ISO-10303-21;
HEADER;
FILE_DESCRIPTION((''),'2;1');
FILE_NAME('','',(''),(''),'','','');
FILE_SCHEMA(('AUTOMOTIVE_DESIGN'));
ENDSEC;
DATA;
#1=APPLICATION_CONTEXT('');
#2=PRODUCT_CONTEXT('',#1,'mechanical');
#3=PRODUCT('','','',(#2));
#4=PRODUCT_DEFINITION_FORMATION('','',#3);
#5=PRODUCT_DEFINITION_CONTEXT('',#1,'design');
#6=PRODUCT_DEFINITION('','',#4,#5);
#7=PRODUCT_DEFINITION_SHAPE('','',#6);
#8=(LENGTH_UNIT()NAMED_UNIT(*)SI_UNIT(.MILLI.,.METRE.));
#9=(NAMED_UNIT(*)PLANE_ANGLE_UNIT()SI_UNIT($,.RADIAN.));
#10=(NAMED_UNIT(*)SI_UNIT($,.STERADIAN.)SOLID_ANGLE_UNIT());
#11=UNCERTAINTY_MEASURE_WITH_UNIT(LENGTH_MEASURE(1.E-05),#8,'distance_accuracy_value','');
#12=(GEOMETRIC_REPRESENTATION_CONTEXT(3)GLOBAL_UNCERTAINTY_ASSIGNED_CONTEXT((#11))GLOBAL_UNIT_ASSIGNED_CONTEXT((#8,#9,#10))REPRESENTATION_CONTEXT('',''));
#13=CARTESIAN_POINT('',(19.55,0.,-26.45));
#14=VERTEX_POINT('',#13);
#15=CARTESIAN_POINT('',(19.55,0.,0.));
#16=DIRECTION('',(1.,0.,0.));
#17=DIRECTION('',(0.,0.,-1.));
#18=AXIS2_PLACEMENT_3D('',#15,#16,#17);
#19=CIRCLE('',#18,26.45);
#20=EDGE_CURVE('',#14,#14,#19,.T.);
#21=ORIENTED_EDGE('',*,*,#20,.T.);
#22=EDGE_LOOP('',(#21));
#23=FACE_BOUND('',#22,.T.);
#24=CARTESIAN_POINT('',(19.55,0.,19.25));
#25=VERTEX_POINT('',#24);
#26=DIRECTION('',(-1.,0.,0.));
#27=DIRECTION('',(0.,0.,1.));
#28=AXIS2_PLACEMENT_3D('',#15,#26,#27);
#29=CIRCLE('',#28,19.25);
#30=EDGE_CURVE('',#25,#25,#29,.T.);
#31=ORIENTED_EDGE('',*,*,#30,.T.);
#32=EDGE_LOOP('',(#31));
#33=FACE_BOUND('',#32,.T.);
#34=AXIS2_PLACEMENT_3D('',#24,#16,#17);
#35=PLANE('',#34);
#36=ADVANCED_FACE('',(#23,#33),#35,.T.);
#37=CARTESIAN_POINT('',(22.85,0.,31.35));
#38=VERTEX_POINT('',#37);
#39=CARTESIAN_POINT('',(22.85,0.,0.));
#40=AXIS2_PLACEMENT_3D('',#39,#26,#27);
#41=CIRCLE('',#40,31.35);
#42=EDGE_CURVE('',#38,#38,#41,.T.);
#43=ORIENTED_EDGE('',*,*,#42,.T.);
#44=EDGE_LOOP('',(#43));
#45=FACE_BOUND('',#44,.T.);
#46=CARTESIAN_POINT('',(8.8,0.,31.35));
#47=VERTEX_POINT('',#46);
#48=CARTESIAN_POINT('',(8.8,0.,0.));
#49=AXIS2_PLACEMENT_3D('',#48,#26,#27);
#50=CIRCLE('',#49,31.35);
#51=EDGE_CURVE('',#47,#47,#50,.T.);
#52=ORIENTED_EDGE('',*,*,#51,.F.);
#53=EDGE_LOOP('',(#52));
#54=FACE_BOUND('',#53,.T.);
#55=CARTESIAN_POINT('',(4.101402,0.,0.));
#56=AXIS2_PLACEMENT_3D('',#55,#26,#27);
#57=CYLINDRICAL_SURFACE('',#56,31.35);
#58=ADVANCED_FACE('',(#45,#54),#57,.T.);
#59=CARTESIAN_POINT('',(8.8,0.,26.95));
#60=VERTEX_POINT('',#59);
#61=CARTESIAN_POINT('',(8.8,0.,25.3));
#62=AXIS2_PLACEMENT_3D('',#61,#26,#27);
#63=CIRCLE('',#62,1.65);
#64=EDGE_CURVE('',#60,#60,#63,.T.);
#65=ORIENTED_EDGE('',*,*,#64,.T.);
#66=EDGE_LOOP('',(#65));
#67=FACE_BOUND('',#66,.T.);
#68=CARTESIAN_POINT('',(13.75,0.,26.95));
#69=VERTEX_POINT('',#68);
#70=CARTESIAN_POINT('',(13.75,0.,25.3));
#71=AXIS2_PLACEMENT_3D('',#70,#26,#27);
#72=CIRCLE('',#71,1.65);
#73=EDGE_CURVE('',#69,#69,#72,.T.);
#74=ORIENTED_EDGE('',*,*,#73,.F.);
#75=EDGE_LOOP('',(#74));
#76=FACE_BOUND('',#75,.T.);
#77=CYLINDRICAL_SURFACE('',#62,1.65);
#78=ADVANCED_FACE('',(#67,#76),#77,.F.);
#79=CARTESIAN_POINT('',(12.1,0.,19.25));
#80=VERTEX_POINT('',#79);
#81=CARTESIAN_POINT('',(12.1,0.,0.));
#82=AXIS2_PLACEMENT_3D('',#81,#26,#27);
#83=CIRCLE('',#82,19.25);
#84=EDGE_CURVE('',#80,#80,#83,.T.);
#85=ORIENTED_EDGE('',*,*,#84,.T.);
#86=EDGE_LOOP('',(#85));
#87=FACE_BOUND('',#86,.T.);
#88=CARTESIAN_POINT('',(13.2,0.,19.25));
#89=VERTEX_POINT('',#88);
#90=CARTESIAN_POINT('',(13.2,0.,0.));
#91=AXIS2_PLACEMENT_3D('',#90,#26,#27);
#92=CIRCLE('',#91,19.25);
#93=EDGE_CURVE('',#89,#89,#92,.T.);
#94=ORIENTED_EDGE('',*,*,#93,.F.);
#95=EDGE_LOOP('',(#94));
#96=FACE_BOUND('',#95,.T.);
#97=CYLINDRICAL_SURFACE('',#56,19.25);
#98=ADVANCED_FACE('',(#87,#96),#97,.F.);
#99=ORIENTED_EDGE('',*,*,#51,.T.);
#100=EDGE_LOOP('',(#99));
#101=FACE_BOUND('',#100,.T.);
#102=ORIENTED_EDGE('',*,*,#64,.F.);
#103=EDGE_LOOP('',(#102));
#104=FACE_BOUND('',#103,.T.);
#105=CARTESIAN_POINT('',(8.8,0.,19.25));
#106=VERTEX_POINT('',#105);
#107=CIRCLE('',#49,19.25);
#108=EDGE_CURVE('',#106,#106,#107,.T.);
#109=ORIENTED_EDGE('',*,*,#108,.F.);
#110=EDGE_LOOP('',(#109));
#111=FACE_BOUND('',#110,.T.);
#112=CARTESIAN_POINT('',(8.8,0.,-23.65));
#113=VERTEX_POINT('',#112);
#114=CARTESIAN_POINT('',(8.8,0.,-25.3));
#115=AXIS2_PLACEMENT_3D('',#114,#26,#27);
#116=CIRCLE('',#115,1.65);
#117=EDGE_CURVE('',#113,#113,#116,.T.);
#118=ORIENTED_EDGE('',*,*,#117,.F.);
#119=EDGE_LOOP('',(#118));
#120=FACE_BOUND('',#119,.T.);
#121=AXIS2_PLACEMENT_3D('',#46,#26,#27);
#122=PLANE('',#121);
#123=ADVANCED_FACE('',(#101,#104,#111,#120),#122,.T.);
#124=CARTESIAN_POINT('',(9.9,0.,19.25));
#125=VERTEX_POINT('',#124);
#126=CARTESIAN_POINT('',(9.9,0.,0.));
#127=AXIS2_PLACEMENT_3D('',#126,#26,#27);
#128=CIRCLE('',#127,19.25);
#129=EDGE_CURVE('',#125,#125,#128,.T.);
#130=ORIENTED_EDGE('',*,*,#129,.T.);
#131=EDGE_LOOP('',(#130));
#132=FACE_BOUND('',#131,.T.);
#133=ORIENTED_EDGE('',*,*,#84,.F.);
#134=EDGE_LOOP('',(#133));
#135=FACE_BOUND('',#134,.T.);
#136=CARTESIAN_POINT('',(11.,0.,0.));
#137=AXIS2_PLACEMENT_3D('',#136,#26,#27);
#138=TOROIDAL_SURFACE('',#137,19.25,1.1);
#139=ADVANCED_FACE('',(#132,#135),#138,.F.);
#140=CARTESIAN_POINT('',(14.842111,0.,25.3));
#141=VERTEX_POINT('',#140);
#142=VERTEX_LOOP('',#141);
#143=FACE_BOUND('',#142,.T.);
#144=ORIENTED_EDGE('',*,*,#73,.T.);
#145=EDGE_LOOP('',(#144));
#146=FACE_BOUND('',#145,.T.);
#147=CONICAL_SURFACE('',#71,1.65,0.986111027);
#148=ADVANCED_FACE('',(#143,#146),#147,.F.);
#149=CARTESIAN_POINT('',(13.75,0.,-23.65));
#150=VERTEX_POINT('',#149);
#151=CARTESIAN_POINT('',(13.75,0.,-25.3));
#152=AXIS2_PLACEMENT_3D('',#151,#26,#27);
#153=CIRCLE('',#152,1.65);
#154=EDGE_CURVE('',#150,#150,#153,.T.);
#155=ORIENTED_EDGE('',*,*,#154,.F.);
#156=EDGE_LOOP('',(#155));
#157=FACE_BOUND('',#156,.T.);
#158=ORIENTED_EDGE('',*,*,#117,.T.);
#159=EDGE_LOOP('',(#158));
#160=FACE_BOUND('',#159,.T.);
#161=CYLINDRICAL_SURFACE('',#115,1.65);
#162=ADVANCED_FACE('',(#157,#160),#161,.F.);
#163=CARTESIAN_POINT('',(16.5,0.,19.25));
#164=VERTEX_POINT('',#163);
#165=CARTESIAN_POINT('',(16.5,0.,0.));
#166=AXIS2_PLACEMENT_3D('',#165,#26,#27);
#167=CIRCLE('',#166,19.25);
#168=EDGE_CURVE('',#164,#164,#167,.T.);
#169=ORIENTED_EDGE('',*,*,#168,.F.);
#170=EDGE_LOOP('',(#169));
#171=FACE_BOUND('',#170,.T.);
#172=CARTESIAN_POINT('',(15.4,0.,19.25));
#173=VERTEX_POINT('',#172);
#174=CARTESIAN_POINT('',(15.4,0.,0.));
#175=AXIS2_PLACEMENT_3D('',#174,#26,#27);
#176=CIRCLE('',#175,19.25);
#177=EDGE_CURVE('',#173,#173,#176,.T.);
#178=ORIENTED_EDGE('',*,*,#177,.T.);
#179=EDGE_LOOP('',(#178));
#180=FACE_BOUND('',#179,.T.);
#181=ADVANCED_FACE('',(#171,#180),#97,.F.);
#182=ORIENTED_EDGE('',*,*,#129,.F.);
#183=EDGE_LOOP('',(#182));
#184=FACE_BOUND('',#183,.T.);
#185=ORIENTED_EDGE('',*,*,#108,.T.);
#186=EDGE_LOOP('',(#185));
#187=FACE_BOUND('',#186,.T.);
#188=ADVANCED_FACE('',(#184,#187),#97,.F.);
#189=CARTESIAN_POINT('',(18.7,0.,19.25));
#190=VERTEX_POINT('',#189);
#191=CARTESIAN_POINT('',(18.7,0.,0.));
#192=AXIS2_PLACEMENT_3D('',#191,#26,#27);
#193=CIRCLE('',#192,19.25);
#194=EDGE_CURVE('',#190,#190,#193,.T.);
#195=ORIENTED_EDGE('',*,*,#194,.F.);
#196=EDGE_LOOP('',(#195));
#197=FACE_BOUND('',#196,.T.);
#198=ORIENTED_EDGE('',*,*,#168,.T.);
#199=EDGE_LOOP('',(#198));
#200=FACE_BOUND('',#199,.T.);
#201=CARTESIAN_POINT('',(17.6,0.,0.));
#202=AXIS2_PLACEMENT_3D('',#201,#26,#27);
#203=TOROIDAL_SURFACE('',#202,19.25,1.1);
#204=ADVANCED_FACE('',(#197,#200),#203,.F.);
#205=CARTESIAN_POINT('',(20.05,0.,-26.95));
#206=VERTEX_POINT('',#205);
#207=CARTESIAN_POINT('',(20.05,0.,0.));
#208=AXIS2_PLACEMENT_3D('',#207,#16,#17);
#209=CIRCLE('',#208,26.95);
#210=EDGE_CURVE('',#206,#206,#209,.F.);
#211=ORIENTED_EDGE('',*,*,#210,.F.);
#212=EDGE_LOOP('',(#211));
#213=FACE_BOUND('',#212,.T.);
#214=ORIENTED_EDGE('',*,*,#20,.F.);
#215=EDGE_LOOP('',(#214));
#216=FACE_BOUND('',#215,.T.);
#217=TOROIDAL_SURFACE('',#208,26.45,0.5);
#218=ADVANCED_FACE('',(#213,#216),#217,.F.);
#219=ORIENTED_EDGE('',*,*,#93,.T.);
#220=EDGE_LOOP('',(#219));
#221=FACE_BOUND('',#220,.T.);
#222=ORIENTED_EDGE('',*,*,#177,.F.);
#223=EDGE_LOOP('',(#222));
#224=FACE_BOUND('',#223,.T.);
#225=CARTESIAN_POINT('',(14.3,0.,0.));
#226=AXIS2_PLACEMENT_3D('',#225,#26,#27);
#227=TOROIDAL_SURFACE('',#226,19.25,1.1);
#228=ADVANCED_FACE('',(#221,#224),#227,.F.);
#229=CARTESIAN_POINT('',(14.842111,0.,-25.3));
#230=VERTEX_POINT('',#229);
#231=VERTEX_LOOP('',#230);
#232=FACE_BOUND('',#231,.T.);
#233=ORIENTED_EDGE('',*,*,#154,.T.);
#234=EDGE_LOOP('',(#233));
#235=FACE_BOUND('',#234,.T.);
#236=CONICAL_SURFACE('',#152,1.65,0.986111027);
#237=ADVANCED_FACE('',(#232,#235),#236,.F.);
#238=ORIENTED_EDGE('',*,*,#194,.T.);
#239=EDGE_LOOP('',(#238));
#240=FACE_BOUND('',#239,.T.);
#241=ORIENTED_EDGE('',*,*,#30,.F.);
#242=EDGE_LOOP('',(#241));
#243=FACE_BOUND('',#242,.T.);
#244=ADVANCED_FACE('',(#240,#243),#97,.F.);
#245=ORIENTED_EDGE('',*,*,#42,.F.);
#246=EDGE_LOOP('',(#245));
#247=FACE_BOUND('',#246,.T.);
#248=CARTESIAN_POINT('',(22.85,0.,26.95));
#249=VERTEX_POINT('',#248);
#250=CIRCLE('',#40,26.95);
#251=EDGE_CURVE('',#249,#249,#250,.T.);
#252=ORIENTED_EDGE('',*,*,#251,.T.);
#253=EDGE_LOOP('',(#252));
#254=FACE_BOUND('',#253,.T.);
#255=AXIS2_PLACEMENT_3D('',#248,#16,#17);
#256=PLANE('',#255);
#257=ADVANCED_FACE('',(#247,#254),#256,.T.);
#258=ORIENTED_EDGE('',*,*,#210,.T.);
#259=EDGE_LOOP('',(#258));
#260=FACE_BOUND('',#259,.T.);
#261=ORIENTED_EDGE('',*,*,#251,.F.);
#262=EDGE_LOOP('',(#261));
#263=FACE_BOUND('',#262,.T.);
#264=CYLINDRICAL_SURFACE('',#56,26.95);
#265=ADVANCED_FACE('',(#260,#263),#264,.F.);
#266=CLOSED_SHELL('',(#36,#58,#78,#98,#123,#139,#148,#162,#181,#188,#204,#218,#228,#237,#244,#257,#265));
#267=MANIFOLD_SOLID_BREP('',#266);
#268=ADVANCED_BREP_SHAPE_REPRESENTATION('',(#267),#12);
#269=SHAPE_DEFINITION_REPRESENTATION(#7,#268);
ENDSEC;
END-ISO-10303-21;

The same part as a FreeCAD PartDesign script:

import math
import FreeCAD as App
import Part
import Sketcher

V = App.Vector
Q = App.Units.Quantity


def edges_at(feature, points):
    """Names of the edges that pass closest to the given points."""
    edges = feature.Shape.Edges
    near = lambda p: min(range(len(edges)), key=lambda i: edges[i].distToShape(Part.Vertex(*p))[0])
    return sorted({f"Edge{near(p) + 1}" for p in points})

doc = App.newDocument("Part")
body = doc.addObject("PartDesign::Body", "Body")

# Sketch on XZ plane
sketch1 = doc.addObject("Sketcher::SketchObject", "Sketch")
body.addObject(sketch1)
sketch1.AttachmentSupport = (doc.XZ_Plane, [""])
sketch1.MapMode = "FlatFace"
sketch1.addGeometry([
    Part.LineSegment(V(9.9, 19.2, 0), V(8.8, 19.2, 0)),  # 0
    Part.LineSegment(V(8.8, 19.2, 0), V(8.8, 31.4, 0)),  # 1
    Part.LineSegment(V(8.8, 31.4, 0), V(22.9, 31.4, 0)),  # 2
    Part.LineSegment(V(22.9, 31.4, 0), V(22.9, 26.9, 0)),  # 3
    Part.LineSegment(V(22.9, 26.9, 0), V(19.6, 26.9, 0)),  # 4
    Part.LineSegment(V(19.6, 26.9, 0), V(19.6, 19.2, 0)),  # 5
    Part.LineSegment(V(19.6, 19.2, 0), V(18.7, 19.2, 0)),  # 6
    Part.ArcOfCircle(Part.Circle(V(17.6, 19.2, 0), V(0, 0, 1), 1.1), math.radians(0), math.radians(180)),  # 7
    Part.LineSegment(V(16.5, 19.2, 0), V(15.4, 19.2, 0)),  # 8
    Part.ArcOfCircle(Part.Circle(V(14.3, 19.2, 0), V(0, 0, 1), 1.1), math.radians(0), math.radians(180)),  # 9
    Part.LineSegment(V(13.2, 19.2, 0), V(12.1, 19.2, 0)),  # 10
    Part.ArcOfCircle(Part.Circle(V(11, 19.2, 0), V(0, 0, 1), 1.1), math.radians(0), math.radians(180)),  # 11
], False)
sketch1.addConstraint([
    Sketcher.Constraint("Coincident", 0, 2, 1, 1),
    Sketcher.Constraint("Coincident", 1, 2, 2, 1),
    Sketcher.Constraint("Coincident", 2, 2, 3, 1),
    Sketcher.Constraint("Coincident", 3, 2, 4, 1),
    Sketcher.Constraint("Coincident", 4, 2, 5, 1),
    Sketcher.Constraint("Coincident", 5, 2, 6, 1),
    Sketcher.Constraint("Coincident", 6, 2, 7, 1),
    Sketcher.Constraint("Coincident", 7, 2, 8, 1),
    Sketcher.Constraint("Coincident", 8, 2, 9, 1),
    Sketcher.Constraint("Coincident", 9, 2, 10, 1),
    Sketcher.Constraint("Coincident", 10, 2, 11, 1),
    Sketcher.Constraint("Coincident", 11, 2, 0, 1),
    Sketcher.Constraint("Horizontal", 0),
    Sketcher.Constraint("Vertical", 1),
    Sketcher.Constraint("Horizontal", 2),
    Sketcher.Constraint("Vertical", 3),
    Sketcher.Constraint("Horizontal", 4),
    Sketcher.Constraint("Vertical", 5),
    Sketcher.Constraint("Horizontal", 6),
    Sketcher.Constraint("Horizontal", 8),
    Sketcher.Constraint("Horizontal", 10),
    Sketcher.Constraint("Equal", 7, 9),
    Sketcher.Constraint("Equal", 9, 11),
    Sketcher.Constraint("Horizontal", 7, 3, 9, 3),
    Sketcher.Constraint("Horizontal", 9, 3, 11, 3),
    Sketcher.Constraint("Horizontal", 11, 3, 0, 2),
    Sketcher.Constraint("Horizontal", 0, 2, 5, 2),
    Sketcher.Constraint("Horizontal", 6, 2, 7, 2),
    Sketcher.Constraint("Horizontal", 8, 2, 9, 2),
    Sketcher.Constraint("Equal", 0, 8),
    Sketcher.Constraint("Equal", 8, 10),
    Sketcher.Constraint("Radius", 7, Q("1.1 mm")),
    Sketcher.Constraint("DistanceX", 0, 2, 0, 1, Q("1.1 mm")),
    Sketcher.Constraint("DistanceX", 4, 2, 4, 1, Q("3.3 mm")),
    Sketcher.Constraint("DistanceY", 1, 1, 1, 2, Q("12.1 mm")),
    Sketcher.Constraint("DistanceY", 3, 2, 3, 1, Q("4.4 mm")),
    Sketcher.Constraint("DistanceX", -1, 1, 11, 3, Q("11 mm")),
    Sketcher.Constraint("DistanceX", 2, 1, 2, 2, Q("14.05 mm")),
    Sketcher.Constraint("DistanceY", -1, 1, 7, 3, Q("19.25 mm")),
])
revolution = doc.addObject("PartDesign::Revolution", "Revolution")
body.addObject(revolution)
revolution.Profile = sketch1
revolution.ReferenceAxis = (sketch1, ["H_Axis"])
revolution.Angle = 360

# Sketch on YZ plane
sketch2 = doc.addObject("Sketcher::SketchObject", "Sketch001")
body.addObject(sketch2)
sketch2.AttachmentSupport = (doc.YZ_Plane, [""])
sketch2.MapMode = "FlatFace"
sketch2.AttachmentOffset = App.Placement(V(0, 0, 8.8), App.Rotation())
sketch2.addGeometry([
    Part.Circle(V(0, -25.3, 0), V(0, 0, 1), 1.6),
    Part.Circle(V(0, 25.3, 0), V(0, 0, 1), 1.6),
], False)
sketch2.addConstraint([
    Sketcher.Constraint("Equal", 0, 1),
    Sketcher.Constraint("Symmetric", 0, 3, 1, 3, -1, 1),
    Sketcher.Constraint("PointOnObject", 0, 3, -2),
    Sketcher.Constraint("Diameter", 0, Q("3.3 mm")),
    Sketcher.Constraint("DistanceY", 0, 3, -1, 1, Q("25.3 mm")),
])
doc.recompute()
hole = doc.addObject("PartDesign::Hole", "Hole")
body.addObject(hole)
hole.Profile = sketch2
hole.ThreadType = "None"
hole.Diameter = 3.3
hole.DepthType = "Dimension"
hole.Depth = 4.95
hole.DrillPoint = "Angled"
hole.DrillPointAngle = 113
hole.Reversed = True
doc.recompute()

fillet = doc.addObject("PartDesign::Fillet", "Fillet")
body.addObject(fillet)
fillet.Base = (hole, edges_at(hole, [(19.55, 0, -26.95)]))
fillet.Radius = 0.5

doc.recompute()
